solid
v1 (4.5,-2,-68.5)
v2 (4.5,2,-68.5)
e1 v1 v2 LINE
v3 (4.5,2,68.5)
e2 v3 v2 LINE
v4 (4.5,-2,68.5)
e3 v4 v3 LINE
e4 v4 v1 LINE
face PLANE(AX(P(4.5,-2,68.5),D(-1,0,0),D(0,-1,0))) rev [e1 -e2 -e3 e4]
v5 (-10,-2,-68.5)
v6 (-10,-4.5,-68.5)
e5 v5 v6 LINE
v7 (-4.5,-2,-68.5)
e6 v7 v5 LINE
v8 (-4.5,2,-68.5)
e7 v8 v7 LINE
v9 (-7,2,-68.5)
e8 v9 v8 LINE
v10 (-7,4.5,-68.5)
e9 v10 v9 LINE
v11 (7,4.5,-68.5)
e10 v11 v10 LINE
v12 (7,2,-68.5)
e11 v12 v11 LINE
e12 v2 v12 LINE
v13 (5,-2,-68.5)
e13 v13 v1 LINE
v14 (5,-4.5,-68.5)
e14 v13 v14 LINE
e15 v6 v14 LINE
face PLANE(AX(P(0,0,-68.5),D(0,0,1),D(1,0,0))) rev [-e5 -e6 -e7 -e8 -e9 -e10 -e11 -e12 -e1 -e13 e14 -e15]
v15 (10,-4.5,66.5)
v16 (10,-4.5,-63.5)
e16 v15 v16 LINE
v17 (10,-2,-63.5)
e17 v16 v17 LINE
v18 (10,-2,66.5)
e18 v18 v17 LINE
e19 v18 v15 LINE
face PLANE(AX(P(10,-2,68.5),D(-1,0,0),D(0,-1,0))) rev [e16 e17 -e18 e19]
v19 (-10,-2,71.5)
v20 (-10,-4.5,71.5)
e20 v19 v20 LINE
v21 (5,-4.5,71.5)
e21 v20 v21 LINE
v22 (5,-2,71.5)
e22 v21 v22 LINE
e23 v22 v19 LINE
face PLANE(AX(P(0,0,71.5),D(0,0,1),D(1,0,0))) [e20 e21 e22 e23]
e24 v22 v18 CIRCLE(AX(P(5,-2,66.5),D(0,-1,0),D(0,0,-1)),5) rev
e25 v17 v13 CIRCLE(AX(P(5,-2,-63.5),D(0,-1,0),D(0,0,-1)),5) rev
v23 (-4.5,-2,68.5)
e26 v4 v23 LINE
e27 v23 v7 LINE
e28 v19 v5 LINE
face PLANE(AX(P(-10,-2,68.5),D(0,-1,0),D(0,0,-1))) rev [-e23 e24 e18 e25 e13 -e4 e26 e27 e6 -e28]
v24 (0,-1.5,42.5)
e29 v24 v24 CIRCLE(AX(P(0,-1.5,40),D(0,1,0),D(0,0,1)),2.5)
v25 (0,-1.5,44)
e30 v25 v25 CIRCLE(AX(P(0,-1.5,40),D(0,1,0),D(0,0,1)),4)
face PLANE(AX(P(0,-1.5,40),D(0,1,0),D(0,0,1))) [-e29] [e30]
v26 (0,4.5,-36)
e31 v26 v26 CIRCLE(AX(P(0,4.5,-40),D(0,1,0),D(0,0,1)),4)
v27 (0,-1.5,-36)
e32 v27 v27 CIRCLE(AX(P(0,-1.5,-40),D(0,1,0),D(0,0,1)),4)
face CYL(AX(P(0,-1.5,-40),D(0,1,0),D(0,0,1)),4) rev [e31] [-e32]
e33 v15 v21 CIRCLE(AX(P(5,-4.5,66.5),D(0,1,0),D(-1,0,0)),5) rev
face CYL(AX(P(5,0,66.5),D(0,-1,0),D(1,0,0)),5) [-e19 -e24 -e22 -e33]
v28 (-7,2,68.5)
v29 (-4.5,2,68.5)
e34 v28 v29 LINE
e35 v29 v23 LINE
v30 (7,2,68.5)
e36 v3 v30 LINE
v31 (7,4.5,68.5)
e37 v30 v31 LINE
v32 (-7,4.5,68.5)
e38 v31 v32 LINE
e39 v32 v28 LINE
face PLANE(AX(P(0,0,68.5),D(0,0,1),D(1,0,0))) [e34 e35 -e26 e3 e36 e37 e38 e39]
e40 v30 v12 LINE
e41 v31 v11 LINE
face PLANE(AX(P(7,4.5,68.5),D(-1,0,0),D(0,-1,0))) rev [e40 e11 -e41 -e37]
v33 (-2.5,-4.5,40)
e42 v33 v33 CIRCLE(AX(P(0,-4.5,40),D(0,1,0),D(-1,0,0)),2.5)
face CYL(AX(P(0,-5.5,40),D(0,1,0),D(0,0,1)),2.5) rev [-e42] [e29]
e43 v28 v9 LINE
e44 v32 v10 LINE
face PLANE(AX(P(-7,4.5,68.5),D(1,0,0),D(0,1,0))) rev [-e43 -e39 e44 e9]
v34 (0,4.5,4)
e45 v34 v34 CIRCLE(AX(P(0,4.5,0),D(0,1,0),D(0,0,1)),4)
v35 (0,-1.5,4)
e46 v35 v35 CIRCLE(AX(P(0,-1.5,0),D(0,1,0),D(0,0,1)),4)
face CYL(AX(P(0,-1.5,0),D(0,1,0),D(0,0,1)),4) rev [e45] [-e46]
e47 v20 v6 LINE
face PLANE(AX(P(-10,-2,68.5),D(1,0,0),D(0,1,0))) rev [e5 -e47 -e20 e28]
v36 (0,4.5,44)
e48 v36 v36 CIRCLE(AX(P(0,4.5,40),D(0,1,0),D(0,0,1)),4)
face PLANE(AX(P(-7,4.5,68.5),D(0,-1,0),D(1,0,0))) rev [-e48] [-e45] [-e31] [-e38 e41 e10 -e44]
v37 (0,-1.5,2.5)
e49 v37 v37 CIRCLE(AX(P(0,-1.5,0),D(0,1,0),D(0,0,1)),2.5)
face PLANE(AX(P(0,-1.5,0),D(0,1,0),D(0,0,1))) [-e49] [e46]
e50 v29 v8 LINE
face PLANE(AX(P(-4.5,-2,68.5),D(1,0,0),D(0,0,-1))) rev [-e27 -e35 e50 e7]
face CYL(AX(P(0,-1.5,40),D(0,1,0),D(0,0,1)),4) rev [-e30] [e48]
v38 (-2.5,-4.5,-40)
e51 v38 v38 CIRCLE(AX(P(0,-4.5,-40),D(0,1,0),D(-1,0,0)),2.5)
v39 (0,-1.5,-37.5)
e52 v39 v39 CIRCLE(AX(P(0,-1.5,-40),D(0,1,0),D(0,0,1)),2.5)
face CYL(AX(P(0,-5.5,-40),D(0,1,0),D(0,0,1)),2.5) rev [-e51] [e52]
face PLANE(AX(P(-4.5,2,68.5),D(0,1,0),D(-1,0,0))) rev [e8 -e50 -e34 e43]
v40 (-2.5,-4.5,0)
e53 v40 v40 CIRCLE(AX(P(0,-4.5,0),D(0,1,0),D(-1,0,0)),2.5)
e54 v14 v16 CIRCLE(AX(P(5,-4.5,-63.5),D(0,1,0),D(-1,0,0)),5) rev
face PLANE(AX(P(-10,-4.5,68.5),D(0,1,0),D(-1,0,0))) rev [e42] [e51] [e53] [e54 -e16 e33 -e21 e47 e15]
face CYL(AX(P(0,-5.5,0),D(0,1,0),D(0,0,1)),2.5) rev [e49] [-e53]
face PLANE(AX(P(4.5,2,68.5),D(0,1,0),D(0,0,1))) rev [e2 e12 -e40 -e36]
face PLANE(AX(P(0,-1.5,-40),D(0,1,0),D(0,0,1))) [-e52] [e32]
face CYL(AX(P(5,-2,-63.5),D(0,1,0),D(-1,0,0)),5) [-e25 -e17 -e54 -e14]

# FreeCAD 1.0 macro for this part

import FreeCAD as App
import Part
import Sketcher

V = App.Vector


def edges_at(feature, points):
    """Names of the edges that pass closest to the given points."""
    edges = feature.Shape.Edges
    near = lambda p: min(range(len(edges)), key=lambda i: edges[i].distToShape(Part.Vertex(*p))[0])
    return sorted({f"Edge{near(p) + 1}" for p in points})

doc = App.newDocument("Part")
params = doc.addObject("Spreadsheet::Sheet", "Params")
for row, (alias, value) in enumerate([
    ("sketch1_width", "14 mm"),
    ("sketch1_width2", "20 mm"),
    ("sketch1_height", "4 mm"),
    ("sketch1_width3", "2.5 mm"),
    ("pad1_length", "137 mm"),
    ("sketch2_diameter", "8 mm"),
    ("pocket1_length", "6 mm"),
    ("sketch3_diameter", "5 mm"),
    ("pocket2_length", "4 mm"),
    ("sketch4_width", "20 mm"),
    ("sketch4_height", "2.5 mm"),
    ("pad2_length", "3 mm"),
    ("fillet_radius", "5 mm"),
], start=1):
    params.set(f"A{row}", alias)
    params.set(f"B{row}", "=" + value)
    params.setAlias(f"B{row}", alias)

body = doc.addObject("PartDesign::Body", "Body")

sketch1 = body.newObject("Sketcher::SketchObject", "Sketch")
sketch1.AttachmentSupport = (doc.getObject("XY_Plane"), [""])
sketch1.MapMode = "FlatFace"
sketch1.addGeometry(Part.LineSegment(V(7, 4.5, 0), V(-7, 4.5, 0)), False)
sketch1.addGeometry(Part.LineSegment(V(-7, 4.5, 0), V(-7, 2, 0)), False)
sketch1.addGeometry(Part.LineSegment(V(-7, 2, 0), V(-4.5, 2, 0)), False)
sketch1.addGeometry(Part.LineSegment(V(-4.5, 2, 0), V(-4.5, -2, 0)), False)
sketch1.addGeometry(Part.LineSegment(V(-4.5, -2, 0), V(-10, -2, 0)), False)
sketch1.addGeometry(Part.LineSegment(V(-10, -2, 0), V(-10, -4.5, 0)), False)
sketch1.addGeometry(Part.LineSegment(V(-10, -4.5, 0), V(10, -4.5, 0)), False)
sketch1.addGeometry(Part.LineSegment(V(10, -4.5, 0), V(10, -2, 0)), False)
sketch1.addGeometry(Part.LineSegment(V(10, -2, 0), V(4.5, -2, 0)), False)
sketch1.addGeometry(Part.LineSegment(V(4.5, -2, 0), V(4.5, 2, 0)), False)
sketch1.addGeometry(Part.LineSegment(V(4.5, 2, 0), V(7, 2, 0)), False)
sketch1.addGeometry(Part.LineSegment(V(7, 2, 0), V(7, 4.5, 0)), False)
sketch1.addConstraint(Sketcher.Constraint("Coincident", 0, 2, 1, 1))
sketch1.addConstraint(Sketcher.Constraint("Coincident", 1, 2, 2, 1))
sketch1.addConstraint(Sketcher.Constraint("Coincident", 2, 2, 3, 1))
sketch1.addConstraint(Sketcher.Constraint("Coincident", 3, 2, 4, 1))
sketch1.addConstraint(Sketcher.Constraint("Coincident", 4, 2, 5, 1))
sketch1.addConstraint(Sketcher.Constraint("Coincident", 5, 2, 6, 1))
sketch1.addConstraint(Sketcher.Constraint("Coincident", 6, 2, 7, 1))
sketch1.addConstraint(Sketcher.Constraint("Coincident", 7, 2, 8, 1))
sketch1.addConstraint(Sketcher.Constraint("Coincident", 8, 2, 9, 1))
sketch1.addConstraint(Sketcher.Constraint("Coincident", 9, 2, 10, 1))
sketch1.addConstraint(Sketcher.Constraint("Coincident", 10, 2, 11, 1))
sketch1.addConstraint(Sketcher.Constraint("Coincident", 11, 2, 0, 1))
sketch1.addConstraint(Sketcher.Constraint("Horizontal", 0))
sketch1.addConstraint(Sketcher.Constraint("Vertical", 1))
sketch1.addConstraint(Sketcher.Constraint("Horizontal", 2))
sketch1.addConstraint(Sketcher.Constraint("Vertical", 3))
sketch1.addConstraint(Sketcher.Constraint("Horizontal", 4))
sketch1.addConstraint(Sketcher.Constraint("Vertical", 5))
sketch1.addConstraint(Sketcher.Constraint("Horizontal", 6))
sketch1.addConstraint(Sketcher.Constraint("Vertical", 7))
sketch1.addConstraint(Sketcher.Constraint("Horizontal", 8))
sketch1.addConstraint(Sketcher.Constraint("Vertical", 9))
sketch1.addConstraint(Sketcher.Constraint("Horizontal", 10))
sketch1.addConstraint(Sketcher.Constraint("Vertical", 11))
sketch1.addConstraint(Sketcher.Constraint("Symmetric", 2, 2, 8, 2, -1, 1))
sketch1.addConstraint(Sketcher.Constraint("Symmetric", 4, 2, 7, 2, -2))
sketch1.addConstraint(Sketcher.Constraint("Symmetric", 1, 2, 10, 2, -2))
sketch1.addConstraint(Sketcher.Constraint("Equal", 10, 1))
sketch1.addConstraint(Sketcher.Constraint("Equal", 1, 5))
sketch1.addConstraint(Sketcher.Constraint("DistanceX", 0, 2, 0, 1, 14.0))
sketch1.addConstraint(Sketcher.Constraint("DistanceX", 6, 1, 6, 2, 20.0))
sketch1.addConstraint(Sketcher.Constraint("DistanceY", 3, 2, 3, 1, 4.0))
sketch1.addConstraint(Sketcher.Constraint("DistanceX", 2, 1, 2, 2, 2.5))
sketch1.setExpression("Constraints[29]", "Params.sketch1_width")
sketch1.setExpression("Constraints[30]", "Params.sketch1_width2")
sketch1.setExpression("Constraints[31]", "Params.sketch1_height")
sketch1.setExpression("Constraints[32]", "Params.sketch1_width3")
pad1 = body.newObject("PartDesign::Pad", "Pad")
pad1.Profile = sketch1
pad1.setExpression("Length", "Params.pad1_length")
pad1.Midplane = True

sketch2 = body.newObject("Sketcher::SketchObject", "Sketch001")
sketch2.AttachmentSupport = (doc.getObject("XZ_Plane"), [""])
sketch2.MapMode = "FlatFace"
sketch2.AttachmentOffset = App.Placement(V(0, 0, -4.5), App.Rotation())
sketch2.addGeometry(Part.Circle(V(0, 0, 0), V(0, 0, 1), 4), False)
sketch2.addGeometry(Part.Circle(V(0, -40, 0), V(0, 0, 1), 4), False)
sketch2.addGeometry(Part.Circle(V(0, 40, 0), V(0, 0, 1), 4), False)
sketch2.addConstraint(Sketcher.Constraint("Coincident", 0, 3, -1, 1))
sketch2.addConstraint(Sketcher.Constraint("Equal", 0, 1))
sketch2.addConstraint(Sketcher.Constraint("Equal", 1, 2))
sketch2.addConstraint(Sketcher.Constraint("Symmetric", 1, 3, 2, 3, -1, 1))
sketch2.addConstraint(Sketcher.Constraint("PointOnObject", 1, 3, -2))
sketch2.addConstraint(Sketcher.Constraint("Diameter", 0, 8.0))
sketch2.addConstraint(Sketcher.Constraint("DistanceY", 1, 3, -1, 1, 40.0))
sketch2.setExpression("Constraints[5]", "Params.sketch2_diameter")
pocket1 = body.newObject("PartDesign::Pocket", "Pocket")
pocket1.Profile = sketch2
pocket1.setExpression("Length", "Params.pocket1_length")
pocket1.Reversed = True

sketch3 = body.newObject("Sketcher::SketchObject", "Sketch002")
sketch3.AttachmentSupport = (doc.getObject("XZ_Plane"), [""])
sketch3.MapMode = "FlatFace"
sketch3.AttachmentOffset = App.Placement(V(0, 0, 1.5), App.Rotation())
sketch3.addGeometry(Part.Circle(V(0, -40, 0), V(0, 0, 1), 2.5), False)
sketch3.addGeometry(Part.Circle(V(0, 0, 0), V(0, 0, 1), 2.5), False)
sketch3.addGeometry(Part.Circle(V(0, 40, 0), V(0, 0, 1), 2.5), False)
sketch3.addConstraint(Sketcher.Constraint("Coincident", 1, 3, -1, 1))
sketch3.addConstraint(Sketcher.Constraint("Equal", 0, 1))
sketch3.addConstraint(Sketcher.Constraint("Equal", 1, 2))
sketch3.addConstraint(Sketcher.Constraint("Symmetric", 0, 3, 2, 3, -1, 1))
sketch3.addConstraint(Sketcher.Constraint("PointOnObject", 0, 3, -2))
sketch3.addConstraint(Sketcher.Constraint("Diameter", 0, 5.0))
sketch3.addConstraint(Sketcher.Constraint("DistanceY", 0, 3, -1, 1, 40.0))
sketch3.setExpression("Constraints[5]", "Params.sketch3_diameter")
pocket2 = body.newObject("PartDesign::Pocket", "Pocket001")
pocket2.Profile = sketch3
pocket2.setExpression("Length", "Params.pocket2_length")
pocket2.Reversed = True

sketch4 = body.newObject("Sketcher::SketchObject", "Sketch003")
sketch4.AttachmentSupport = (doc.getObject("XY_Plane"), [""])
sketch4.MapMode = "FlatFace"
sketch4.AttachmentOffset = App.Placement(V(0, 0, 68.5), App.Rotation())
sketch4.addGeometry(Part.LineSegment(V(-10, -2, 0), V(-10, -4.5, 0)), False)
sketch4.addGeometry(Part.LineSegment(V(-10, -4.5, 0), V(10, -4.5, 0)), False)
sketch4.addGeometry(Part.LineSegment(V(10, -4.5, 0), V(10, -2, 0)), False)
sketch4.addGeometry(Part.LineSegment(V(10, -2, 0), V(-10, -2, 0)), False)
sketch4.addConstraint(Sketcher.Constraint("Coincident", 0, 2, 1, 1))
sketch4.addConstraint(Sketcher.Constraint("Coincident", 1, 2, 2, 1))
sketch4.addConstraint(Sketcher.Constraint("Coincident", 2, 2, 3, 1))
sketch4.addConstraint(Sketcher.Constraint("Coincident", 3, 2, 0, 1))
sketch4.addConstraint(Sketcher.Constraint("Vertical", 0))
sketch4.addConstraint(Sketcher.Constraint("Horizontal", 1))
sketch4.addConstraint(Sketcher.Constraint("Vertical", 2))
sketch4.addConstraint(Sketcher.Constraint("Horizontal", 3))
sketch4.addConstraint(Sketcher.Constraint("DistanceX", 1, 1, 1, 2, 20.0))
sketch4.addConstraint(Sketcher.Constraint("DistanceY", 0, 2, 0, 1, 2.5))
sketch4.addConstraint(Sketcher.Constraint("DistanceX", 0, 2, -1, 1, 10.0))
sketch4.addConstraint(Sketcher.Constraint("DistanceY", 2, 2, -1, 1, 2.0))
sketch4.setExpression("Constraints[8]", "Params.sketch4_width")
sketch4.setExpression("Constraints[9]", "Params.sketch4_height")
pad2 = body.newObject("PartDesign::Pad", "Pad001")
pad2.Profile = sketch4
pad2.setExpression("Length", "Params.pad2_length")
doc.recompute()

fillet = body.newObject("PartDesign::Fillet", "Fillet")
fillet.Base = (pad2, edges_at(pad2, [(10, -3.25, -68.5), (10, -3.25, 71.5)]))
fillet.setExpression("Radius", "Params.fillet_radius")

doc.recompute()
